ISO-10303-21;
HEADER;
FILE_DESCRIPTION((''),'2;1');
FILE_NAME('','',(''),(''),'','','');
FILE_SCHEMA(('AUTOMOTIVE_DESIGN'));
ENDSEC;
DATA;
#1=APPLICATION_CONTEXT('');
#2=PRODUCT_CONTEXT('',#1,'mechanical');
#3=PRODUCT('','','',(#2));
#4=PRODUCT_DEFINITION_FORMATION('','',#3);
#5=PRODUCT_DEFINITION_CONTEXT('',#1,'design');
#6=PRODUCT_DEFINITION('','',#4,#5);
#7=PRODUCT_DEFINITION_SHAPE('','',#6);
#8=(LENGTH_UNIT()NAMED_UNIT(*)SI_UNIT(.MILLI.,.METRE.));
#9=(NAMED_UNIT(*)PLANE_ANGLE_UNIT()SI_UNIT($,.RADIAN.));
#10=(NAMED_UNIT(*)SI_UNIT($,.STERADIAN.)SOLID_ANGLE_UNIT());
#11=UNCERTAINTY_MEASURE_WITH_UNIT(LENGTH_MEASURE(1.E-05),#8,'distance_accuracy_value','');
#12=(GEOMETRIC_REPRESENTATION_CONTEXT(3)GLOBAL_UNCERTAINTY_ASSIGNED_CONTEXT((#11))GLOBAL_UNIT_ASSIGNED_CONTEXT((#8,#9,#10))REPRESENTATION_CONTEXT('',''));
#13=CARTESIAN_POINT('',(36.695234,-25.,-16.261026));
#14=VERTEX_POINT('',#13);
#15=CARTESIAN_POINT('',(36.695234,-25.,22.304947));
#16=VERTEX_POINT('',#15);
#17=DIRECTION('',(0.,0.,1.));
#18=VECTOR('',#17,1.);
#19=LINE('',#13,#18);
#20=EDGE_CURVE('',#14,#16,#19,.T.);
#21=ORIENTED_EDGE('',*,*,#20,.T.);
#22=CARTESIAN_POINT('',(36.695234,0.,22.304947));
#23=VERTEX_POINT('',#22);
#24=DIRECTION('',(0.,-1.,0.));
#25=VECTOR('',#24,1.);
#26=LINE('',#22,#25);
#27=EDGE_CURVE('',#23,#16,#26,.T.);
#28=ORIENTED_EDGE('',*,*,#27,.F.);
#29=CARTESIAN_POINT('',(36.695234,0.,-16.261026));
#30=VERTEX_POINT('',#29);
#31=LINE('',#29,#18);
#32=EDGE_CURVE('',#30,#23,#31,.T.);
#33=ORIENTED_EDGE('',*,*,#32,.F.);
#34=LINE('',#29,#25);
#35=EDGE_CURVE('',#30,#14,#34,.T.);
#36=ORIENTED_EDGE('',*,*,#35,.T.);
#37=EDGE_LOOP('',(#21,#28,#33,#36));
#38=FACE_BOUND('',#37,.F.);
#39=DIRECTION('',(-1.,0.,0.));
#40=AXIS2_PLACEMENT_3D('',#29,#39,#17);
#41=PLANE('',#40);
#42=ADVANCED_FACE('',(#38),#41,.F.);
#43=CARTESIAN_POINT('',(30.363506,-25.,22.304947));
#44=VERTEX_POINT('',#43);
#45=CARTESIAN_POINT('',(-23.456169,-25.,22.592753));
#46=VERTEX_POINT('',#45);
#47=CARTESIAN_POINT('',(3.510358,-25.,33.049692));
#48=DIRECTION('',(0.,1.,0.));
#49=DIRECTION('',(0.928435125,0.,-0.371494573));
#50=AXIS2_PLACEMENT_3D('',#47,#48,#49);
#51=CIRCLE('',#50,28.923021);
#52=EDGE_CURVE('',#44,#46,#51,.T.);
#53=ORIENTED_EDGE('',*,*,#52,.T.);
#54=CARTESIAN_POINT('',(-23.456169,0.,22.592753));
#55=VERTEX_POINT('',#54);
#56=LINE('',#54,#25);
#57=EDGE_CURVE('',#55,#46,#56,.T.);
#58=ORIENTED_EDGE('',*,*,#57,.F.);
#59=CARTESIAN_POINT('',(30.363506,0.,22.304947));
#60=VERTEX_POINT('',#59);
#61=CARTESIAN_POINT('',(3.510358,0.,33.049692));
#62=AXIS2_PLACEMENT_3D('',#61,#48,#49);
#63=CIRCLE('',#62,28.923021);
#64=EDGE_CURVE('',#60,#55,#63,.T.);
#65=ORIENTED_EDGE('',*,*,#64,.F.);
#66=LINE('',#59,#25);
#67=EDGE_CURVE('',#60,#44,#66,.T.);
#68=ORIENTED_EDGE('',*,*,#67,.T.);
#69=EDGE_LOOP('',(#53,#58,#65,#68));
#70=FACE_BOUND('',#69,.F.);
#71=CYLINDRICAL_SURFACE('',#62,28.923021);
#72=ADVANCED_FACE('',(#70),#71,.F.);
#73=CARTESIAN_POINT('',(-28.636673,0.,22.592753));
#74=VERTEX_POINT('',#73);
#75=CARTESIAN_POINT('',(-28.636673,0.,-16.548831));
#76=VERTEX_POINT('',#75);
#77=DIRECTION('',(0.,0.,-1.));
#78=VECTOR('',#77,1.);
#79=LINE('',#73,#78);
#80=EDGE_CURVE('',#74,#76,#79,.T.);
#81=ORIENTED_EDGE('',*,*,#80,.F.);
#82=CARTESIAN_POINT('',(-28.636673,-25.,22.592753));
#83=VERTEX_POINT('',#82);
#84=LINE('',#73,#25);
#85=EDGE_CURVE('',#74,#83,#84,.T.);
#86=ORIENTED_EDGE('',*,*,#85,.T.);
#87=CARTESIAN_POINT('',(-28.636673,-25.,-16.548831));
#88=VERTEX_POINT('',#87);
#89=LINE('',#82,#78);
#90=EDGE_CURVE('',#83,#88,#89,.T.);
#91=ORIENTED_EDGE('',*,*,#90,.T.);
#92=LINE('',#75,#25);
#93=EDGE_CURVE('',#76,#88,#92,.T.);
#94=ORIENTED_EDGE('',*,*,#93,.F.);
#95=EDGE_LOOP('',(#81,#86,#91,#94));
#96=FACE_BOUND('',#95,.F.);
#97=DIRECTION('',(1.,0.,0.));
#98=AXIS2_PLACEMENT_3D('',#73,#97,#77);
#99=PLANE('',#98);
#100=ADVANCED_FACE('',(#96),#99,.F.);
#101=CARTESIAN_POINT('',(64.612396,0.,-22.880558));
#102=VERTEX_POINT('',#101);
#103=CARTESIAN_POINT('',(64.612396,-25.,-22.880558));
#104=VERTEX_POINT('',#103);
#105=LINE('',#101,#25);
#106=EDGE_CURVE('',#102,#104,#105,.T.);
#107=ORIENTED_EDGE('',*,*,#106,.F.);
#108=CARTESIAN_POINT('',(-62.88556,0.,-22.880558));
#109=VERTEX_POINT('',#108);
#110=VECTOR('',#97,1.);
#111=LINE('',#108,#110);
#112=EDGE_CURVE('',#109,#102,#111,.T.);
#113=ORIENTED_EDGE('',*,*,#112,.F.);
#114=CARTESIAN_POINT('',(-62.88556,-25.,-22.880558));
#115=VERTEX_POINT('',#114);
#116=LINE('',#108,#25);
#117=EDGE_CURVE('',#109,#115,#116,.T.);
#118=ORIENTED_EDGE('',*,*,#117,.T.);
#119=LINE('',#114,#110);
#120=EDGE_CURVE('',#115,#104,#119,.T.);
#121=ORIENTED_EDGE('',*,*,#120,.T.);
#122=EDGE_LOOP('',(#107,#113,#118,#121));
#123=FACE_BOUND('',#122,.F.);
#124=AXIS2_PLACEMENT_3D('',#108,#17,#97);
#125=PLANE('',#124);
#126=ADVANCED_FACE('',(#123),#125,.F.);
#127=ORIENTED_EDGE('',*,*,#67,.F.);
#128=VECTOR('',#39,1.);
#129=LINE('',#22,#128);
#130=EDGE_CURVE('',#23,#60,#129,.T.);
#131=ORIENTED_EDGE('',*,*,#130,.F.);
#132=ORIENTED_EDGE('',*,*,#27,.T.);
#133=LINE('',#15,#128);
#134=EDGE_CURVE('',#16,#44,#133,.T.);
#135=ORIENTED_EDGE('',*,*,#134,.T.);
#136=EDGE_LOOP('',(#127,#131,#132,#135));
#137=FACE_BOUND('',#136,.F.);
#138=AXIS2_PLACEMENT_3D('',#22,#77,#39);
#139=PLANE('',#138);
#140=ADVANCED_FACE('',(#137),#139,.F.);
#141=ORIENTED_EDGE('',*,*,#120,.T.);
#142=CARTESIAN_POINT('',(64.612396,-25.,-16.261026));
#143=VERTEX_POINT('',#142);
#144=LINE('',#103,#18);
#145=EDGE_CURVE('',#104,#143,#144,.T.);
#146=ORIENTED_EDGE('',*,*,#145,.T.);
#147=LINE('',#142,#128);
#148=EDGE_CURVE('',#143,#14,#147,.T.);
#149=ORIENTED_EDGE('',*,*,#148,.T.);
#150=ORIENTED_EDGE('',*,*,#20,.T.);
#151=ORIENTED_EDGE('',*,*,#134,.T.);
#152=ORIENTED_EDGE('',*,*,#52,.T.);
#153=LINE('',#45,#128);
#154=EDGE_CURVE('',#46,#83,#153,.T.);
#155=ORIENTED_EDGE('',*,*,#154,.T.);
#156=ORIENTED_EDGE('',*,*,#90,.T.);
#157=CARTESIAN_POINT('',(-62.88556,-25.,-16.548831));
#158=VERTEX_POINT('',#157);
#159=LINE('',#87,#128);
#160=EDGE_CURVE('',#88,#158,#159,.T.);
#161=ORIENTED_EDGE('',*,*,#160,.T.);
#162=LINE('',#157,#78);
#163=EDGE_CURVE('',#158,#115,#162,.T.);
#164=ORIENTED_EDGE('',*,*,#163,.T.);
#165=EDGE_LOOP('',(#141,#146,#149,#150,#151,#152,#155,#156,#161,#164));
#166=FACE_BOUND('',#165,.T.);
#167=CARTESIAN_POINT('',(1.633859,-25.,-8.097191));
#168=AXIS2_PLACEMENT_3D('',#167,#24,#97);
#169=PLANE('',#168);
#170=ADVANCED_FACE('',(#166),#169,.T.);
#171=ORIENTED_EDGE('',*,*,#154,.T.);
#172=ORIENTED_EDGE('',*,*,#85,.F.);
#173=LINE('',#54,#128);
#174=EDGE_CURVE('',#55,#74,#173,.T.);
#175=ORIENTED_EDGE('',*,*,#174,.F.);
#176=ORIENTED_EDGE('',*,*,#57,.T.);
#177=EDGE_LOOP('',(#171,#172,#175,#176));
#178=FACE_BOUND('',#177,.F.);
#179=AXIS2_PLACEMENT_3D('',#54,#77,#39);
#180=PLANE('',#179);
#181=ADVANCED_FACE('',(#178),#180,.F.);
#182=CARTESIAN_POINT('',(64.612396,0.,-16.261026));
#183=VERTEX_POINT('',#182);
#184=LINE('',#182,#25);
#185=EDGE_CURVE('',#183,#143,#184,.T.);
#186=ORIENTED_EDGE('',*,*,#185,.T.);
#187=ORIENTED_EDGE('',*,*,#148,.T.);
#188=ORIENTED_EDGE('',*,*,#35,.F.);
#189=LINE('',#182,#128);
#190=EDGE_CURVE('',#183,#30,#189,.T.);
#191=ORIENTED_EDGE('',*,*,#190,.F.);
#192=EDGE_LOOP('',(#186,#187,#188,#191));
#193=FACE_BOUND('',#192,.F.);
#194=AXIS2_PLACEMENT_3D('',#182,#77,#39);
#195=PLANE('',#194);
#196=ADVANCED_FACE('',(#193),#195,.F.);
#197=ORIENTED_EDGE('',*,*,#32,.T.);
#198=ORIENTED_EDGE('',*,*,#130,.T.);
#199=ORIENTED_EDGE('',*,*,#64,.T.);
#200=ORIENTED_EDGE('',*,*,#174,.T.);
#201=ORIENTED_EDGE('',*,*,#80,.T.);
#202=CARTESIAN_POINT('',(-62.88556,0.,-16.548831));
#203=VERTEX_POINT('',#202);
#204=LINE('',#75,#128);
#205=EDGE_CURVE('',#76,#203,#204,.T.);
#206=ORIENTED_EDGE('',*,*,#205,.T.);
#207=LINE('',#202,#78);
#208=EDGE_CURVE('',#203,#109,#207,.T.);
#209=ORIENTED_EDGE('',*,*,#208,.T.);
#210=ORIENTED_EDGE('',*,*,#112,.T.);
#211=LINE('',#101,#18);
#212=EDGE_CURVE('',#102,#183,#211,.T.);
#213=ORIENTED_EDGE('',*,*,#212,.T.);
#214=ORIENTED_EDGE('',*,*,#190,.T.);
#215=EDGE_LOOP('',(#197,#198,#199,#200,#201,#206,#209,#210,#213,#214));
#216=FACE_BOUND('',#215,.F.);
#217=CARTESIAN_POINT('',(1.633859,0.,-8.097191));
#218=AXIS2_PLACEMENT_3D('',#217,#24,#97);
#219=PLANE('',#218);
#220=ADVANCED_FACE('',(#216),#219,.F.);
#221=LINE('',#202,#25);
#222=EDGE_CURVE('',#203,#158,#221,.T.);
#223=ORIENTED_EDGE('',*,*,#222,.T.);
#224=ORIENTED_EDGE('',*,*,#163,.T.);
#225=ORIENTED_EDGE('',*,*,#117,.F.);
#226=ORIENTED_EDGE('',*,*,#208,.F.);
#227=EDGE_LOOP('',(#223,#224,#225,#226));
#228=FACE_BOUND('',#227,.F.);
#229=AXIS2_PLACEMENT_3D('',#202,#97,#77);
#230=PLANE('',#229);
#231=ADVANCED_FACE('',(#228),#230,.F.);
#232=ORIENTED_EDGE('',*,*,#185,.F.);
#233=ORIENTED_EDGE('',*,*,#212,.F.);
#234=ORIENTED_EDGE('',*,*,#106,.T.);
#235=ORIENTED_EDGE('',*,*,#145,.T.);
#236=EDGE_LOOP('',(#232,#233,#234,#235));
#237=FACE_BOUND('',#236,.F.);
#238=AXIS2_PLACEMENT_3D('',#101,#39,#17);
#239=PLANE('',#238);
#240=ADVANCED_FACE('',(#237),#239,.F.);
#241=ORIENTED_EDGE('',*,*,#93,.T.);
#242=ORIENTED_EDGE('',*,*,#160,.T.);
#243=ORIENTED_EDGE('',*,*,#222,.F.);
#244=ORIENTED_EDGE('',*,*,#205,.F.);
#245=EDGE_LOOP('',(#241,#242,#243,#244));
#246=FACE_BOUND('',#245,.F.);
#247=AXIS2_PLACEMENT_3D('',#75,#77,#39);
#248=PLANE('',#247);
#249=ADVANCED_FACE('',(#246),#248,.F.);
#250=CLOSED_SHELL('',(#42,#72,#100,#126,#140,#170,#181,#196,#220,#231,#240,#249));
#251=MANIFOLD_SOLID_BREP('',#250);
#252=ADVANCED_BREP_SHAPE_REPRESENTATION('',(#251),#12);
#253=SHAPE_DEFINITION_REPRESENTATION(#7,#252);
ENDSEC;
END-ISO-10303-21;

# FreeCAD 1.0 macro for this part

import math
import FreeCAD as App
import Part
import Sketcher

doc = App.newDocument("Part")
body = doc.addObject("PartDesign::Body", "Body")

sketch1 = body.newObject("Sketcher::SketchObject", "Sketch")
sketch1.AttachmentSupport = (doc.getObject("XZ_Plane"), [""])
sketch1.MapMode = "FlatFace"
sketch1.addGeometry([
    Part.LineSegment(App.Vector(-28.636673, -16.548831, 0), App.Vector(-62.88556, -16.548831, 0)),
    Part.LineSegment(App.Vector(-62.88556, -16.548831, 0), App.Vector(-62.88556, -22.880558, 0)),
    Part.LineSegment(App.Vector(-62.88556, -22.880558, 0), App.Vector(64.612396, -22.880558, 0)),
    Part.LineSegment(App.Vector(64.612396, -22.880558, 0), App.Vector(64.612396, -16.261026, 0)),
    Part.LineSegment(App.Vector(64.612396, -16.261026, 0), App.Vector(36.695234, -16.261026, 0)),
    Part.LineSegment(App.Vector(36.695234, -16.261026, 0), App.Vector(36.695234, 22.304947, 0)),
    Part.LineSegment(App.Vector(36.695234, 22.304947, 0), App.Vector(30.363506, 22.304947, 0)),
    Part.ArcOfCircle(Part.Circle(App.Vector(3.510358, 33.049692, 0), App.Vector(0, 0, 1), 28.923021), math.radians(-158.804963), math.radians(-21.807821)),
    Part.LineSegment(App.Vector(-23.456169, 22.592753, 0), App.Vector(-28.636673, 22.592753, 0)),
    Part.LineSegment(App.Vector(-28.636673, 22.592753, 0), App.Vector(-28.636673, -16.548831, 0)),
], False)
sketch1.addConstraint([
    Sketcher.Constraint("Coincident", 0, 2, 1, 1),
    Sketcher.Constraint("Coincident", 1, 2, 2, 1),
    Sketcher.Constraint("Coincident", 2, 2, 3, 1),
    Sketcher.Constraint("Coincident", 3, 2, 4, 1),
    Sketcher.Constraint("Coincident", 4, 2, 5, 1),
    Sketcher.Constraint("Coincident", 5, 2, 6, 1),
    Sketcher.Constraint("Coincident", 6, 2, 7, 2),
    Sketcher.Constraint("Coincident", 7, 1, 8, 1),
    Sketcher.Constraint("Coincident", 8, 2, 9, 1),
    Sketcher.Constraint("Coincident", 9, 2, 0, 1),
    Sketcher.Constraint("Horizontal", 0),
    Sketcher.Constraint("Vertical", 1),
    Sketcher.Constraint("Horizontal", 2),
    Sketcher.Constraint("Vertical", 3),
    Sketcher.Constraint("Horizontal", 4),
    Sketcher.Constraint("Vertical", 5),
    Sketcher.Constraint("Horizontal", 6),
    Sketcher.Constraint("Horizontal", 8),
    Sketcher.Constraint("Vertical", 9),
    Sketcher.Constraint("Equal", 6, 1),
    Sketcher.Constraint("Radius", 7, 28.923021),
    Sketcher.Constraint("DistanceY", 3, 1, 3, 2, 6.619532),
    Sketcher.Constraint("DistanceX", 0, 2, 0, 1, 34.248887),
    Sketcher.Constraint("DistanceX", 2, 1, 2, 2, 127.497956),
    Sketcher.Constraint("DistanceX", 4, 2, 4, 1, 27.917162),
    Sketcher.Constraint("DistanceX", 6, 2, 6, 1, 6.331728),
    Sketcher.Constraint("DistanceX", 8, 2, 8, 1, 5.180504),
    Sketcher.Constraint("DistanceY", 5, 1, 5, 2, 38.565973),
    Sketcher.Constraint("DistanceY", 9, 2, 9, 1, 39.141584),
    Sketcher.Constraint("DistanceX", 0, 2, -1, 1, 62.88556),
    Sketcher.Constraint("DistanceY", 0, 2, -1, 1, 16.548831),
])
pad1 = body.newObject("PartDesign::Pad", "Pad")
pad1.Profile = sketch1
pad1.Length = 25

doc.recompute()
